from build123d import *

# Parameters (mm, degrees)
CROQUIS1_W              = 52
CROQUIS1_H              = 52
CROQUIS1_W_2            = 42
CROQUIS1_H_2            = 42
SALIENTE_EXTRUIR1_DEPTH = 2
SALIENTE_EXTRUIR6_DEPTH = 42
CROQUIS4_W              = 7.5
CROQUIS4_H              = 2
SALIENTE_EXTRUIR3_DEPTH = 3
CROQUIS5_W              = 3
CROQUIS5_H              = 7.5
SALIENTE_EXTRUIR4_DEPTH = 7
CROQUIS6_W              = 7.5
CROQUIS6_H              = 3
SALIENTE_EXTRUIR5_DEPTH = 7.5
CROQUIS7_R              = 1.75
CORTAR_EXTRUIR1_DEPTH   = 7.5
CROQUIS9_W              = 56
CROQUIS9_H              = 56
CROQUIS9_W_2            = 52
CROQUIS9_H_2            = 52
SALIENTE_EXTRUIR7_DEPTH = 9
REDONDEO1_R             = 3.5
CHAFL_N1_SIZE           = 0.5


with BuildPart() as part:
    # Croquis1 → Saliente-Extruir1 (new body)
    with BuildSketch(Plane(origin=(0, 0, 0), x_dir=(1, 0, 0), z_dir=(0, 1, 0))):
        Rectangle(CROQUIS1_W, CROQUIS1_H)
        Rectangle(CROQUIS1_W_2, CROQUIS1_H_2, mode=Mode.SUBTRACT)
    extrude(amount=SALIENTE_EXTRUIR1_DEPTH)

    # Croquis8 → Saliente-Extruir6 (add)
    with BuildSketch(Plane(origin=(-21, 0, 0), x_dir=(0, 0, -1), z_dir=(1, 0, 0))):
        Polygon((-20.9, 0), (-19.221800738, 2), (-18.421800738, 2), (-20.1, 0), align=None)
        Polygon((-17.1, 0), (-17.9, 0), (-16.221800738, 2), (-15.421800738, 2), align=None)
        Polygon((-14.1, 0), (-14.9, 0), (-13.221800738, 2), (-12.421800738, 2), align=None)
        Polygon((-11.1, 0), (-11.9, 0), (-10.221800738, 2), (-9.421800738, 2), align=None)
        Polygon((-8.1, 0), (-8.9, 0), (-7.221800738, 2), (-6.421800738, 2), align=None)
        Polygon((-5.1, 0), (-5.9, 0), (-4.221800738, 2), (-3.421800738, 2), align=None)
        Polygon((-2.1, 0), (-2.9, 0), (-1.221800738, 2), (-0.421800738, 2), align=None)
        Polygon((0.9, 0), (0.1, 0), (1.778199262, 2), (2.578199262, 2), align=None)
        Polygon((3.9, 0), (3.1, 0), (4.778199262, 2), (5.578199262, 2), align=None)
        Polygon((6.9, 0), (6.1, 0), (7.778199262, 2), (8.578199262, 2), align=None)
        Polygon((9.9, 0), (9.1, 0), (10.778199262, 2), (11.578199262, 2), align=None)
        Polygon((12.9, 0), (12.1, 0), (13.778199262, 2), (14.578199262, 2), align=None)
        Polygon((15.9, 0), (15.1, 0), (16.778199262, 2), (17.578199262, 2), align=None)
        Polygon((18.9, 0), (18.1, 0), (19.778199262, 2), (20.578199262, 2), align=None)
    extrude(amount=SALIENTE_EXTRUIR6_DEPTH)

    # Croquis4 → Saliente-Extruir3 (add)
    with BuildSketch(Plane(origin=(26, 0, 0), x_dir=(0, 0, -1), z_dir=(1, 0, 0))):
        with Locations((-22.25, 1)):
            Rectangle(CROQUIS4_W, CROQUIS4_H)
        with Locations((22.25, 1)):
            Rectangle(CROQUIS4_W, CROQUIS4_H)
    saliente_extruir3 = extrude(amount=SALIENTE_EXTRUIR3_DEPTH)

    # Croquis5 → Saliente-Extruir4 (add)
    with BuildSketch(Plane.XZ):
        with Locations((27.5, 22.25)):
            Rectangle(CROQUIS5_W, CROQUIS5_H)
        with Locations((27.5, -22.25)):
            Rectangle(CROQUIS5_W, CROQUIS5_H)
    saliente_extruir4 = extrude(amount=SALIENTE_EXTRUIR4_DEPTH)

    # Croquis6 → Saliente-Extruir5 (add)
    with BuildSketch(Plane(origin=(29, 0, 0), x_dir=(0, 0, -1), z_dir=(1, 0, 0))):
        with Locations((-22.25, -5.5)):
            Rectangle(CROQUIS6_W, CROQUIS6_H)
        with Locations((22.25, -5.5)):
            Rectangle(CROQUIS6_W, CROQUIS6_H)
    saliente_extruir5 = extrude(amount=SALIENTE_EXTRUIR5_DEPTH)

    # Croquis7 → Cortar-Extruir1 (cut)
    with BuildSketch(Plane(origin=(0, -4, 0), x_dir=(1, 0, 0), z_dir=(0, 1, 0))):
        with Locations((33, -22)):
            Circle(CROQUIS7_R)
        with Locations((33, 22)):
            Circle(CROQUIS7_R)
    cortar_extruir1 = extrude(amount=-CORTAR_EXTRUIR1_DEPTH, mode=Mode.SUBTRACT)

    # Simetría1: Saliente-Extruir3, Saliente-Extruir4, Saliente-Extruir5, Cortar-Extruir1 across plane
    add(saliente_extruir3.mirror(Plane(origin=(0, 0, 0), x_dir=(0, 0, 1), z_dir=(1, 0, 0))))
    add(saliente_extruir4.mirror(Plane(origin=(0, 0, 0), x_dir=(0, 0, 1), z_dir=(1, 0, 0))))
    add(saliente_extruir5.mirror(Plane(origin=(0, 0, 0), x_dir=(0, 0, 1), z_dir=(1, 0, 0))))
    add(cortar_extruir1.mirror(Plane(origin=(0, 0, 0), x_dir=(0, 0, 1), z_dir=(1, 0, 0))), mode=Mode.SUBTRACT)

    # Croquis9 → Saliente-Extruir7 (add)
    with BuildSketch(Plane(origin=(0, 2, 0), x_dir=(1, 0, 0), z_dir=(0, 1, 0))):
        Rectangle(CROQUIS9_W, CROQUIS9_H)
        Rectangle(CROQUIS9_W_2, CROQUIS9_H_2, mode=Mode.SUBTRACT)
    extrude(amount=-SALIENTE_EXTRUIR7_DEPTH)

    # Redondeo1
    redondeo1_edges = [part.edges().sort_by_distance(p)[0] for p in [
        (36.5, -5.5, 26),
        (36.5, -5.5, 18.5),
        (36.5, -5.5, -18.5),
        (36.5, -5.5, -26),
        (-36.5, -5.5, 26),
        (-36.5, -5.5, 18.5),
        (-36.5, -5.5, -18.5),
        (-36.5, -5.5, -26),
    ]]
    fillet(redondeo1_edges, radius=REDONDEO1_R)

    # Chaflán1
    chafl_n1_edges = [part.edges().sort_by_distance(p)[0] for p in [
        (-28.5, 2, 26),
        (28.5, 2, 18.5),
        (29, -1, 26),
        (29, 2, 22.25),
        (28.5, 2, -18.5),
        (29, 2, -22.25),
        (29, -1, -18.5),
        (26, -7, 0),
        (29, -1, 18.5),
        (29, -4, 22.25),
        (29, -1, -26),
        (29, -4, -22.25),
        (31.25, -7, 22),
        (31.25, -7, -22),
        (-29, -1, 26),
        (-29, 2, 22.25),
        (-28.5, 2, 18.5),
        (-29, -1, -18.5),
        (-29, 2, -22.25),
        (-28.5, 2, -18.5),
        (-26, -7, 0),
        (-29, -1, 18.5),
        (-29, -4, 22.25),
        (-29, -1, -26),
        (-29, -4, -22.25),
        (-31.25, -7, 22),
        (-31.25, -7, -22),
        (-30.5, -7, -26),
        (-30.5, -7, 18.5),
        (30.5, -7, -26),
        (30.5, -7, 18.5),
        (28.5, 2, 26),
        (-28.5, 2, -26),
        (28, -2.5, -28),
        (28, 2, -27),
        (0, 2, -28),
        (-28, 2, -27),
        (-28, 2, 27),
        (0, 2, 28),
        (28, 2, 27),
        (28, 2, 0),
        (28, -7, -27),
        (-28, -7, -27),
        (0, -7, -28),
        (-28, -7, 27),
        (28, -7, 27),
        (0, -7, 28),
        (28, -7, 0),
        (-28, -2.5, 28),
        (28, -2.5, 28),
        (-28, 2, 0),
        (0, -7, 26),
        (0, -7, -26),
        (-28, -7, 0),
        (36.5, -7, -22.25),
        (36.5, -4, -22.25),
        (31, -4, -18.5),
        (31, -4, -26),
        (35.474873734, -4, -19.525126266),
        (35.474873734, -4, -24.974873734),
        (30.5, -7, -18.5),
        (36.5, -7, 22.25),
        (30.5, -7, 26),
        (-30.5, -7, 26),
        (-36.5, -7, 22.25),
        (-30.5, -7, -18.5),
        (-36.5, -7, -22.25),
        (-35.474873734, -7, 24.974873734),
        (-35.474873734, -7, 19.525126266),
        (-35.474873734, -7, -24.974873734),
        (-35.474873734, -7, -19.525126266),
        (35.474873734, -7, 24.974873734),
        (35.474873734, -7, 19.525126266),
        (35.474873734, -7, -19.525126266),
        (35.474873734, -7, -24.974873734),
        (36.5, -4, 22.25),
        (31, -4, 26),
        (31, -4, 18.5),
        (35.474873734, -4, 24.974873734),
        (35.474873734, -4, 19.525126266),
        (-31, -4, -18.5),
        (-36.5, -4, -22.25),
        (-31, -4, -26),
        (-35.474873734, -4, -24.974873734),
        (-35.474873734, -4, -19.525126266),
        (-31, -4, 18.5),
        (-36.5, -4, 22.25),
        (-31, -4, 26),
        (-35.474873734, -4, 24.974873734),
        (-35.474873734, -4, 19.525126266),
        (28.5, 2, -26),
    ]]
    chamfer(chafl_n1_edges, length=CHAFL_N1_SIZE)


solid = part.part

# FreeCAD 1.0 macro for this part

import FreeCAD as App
import Part
import Sketcher
from FreeCAD import Vector
Q = App.Units.Quantity


def edges_at(feature, points):
    """Names of the edges that pass closest to the given points."""
    edges = feature.Shape.Edges
    near = lambda p: min(range(len(edges)), key=lambda i: edges[i].distToShape(Part.Vertex(*p))[0])
    return sorted({f"Edge{near(p) + 1}" for p in points})


def add_polygon(sketch, points):
    """Adds a closed chain of lines whose ends are joined by coincident constraints."""
    first, n = sketch.GeometryCount, len(points)
    for a, b in zip(points, points[1:] + points[:1]):
        sketch.addGeometry(Part.LineSegment(App.Vector(*a, 0), App.Vector(*b, 0)), False)
    for i in range(n):
        sketch.addConstraint(Sketcher.Constraint("Coincident", first + i, 2, first + (i + 1) % n, 1))

doc = App.newDocument("Part")
body = doc.addObject("PartDesign::Body", "Body")

# Sketch on XZ plane
sketch1 = body.newObject("Sketcher::SketchObject", "Sketch")
sketch1.AttachmentSupport = (doc.getObject("XZ_Plane"), [""])
sketch1.MapMode = "FlatFace"
add_polygon(sketch1, [(-26, -26), (-26, 26), (26, 26), (26, -26)])  # lines 0-3
add_polygon(sketch1, [(21, 21), (-21, 21), (-21, -21), (21, -21)])  # lines 4-7
sketch1.addConstraint(Sketcher.Constraint("Vertical", 0))
sketch1.addConstraint(Sketcher.Constraint("Horizontal", 1))
sketch1.addConstraint(Sketcher.Constraint("Vertical", 2))
sketch1.addConstraint(Sketcher.Constraint("Horizontal", 3))
sketch1.addConstraint(Sketcher.Constraint("Horizontal", 4))
sketch1.addConstraint(Sketcher.Constraint("Vertical", 5))
sketch1.addConstraint(Sketcher.Constraint("Horizontal", 6))
sketch1.addConstraint(Sketcher.Constraint("Vertical", 7))
sketch1.addConstraint(Sketcher.Constraint("Symmetric", 0, 2, 2, 2, -1, 1))
sketch1.addConstraint(Sketcher.Constraint("Symmetric", 4, 2, 6, 2, -1, 1))
sketch1.addConstraint(Sketcher.Constraint("Equal", 3, 0))
sketch1.addConstraint(Sketcher.Constraint("Equal", 6, 5))
sketch1.addConstraint(Sketcher.Constraint("DistanceX", 1, 1, 1, 2, Q("52 mm")))
sketch1.addConstraint(Sketcher.Constraint("DistanceX", 4, 2, 4, 1, Q("42 mm")))
pad1 = body.newObject("PartDesign::Pad", "Pad")
pad1.Profile = sketch1
pad1.Length = 2
pad1.Reversed = True

# Sketch on YZ plane
sketch2 = body.newObject("Sketcher::SketchObject", "Sketch001")
sketch2.AttachmentSupport = (doc.getObject("YZ_Plane"), [""])
sketch2.MapMode = "FlatFace"
sketch2.AttachmentOffset = App.Placement(Vector(0, 0, -21), App.Rotation())
add_polygon(sketch2, [(2, 19.2), (0, 20.9), (0, 20.1), (2, 18.4)])  # lines 0-3
add_polygon(sketch2, [(0, 17.9), (0, 17.1), (2, 15.4), (2, 16.2)])  # lines 4-7
add_polygon(sketch2, [(0, 14.9), (0, 14.1), (2, 12.4), (2, 13.2)])  # lines 8-11
add_polygon(sketch2, [(0, 11.9), (0, 11.1), (2, 9.4), (2, 10.2)])  # lines 12-15
add_polygon(sketch2, [(0, 8.9), (0, 8.1), (2, 6.4), (2, 7.2)])  # lines 16-19
add_polygon(sketch2, [(0, 5.9), (0, 5.1), (2, 3.4), (2, 4.2)])  # lines 20-23
add_polygon(sketch2, [(0, 2.9), (0, 2.1), (2, 0.4), (2, 1.2)])  # lines 24-27
add_polygon(sketch2, [(0, -0.1), (0, -0.9), (2, -2.6), (2, -1.8)])  # lines 28-31
add_polygon(sketch2, [(0, -3.1), (0, -3.9), (2, -5.6), (2, -4.8)])  # lines 32-35
add_polygon(sketch2, [(0, -6.1), (0, -6.9), (2, -8.6), (2, -7.8)])  # lines 36-39
add_polygon(sketch2, [(0, -9.1), (0, -9.9), (2, -11.6), (2, -10.8)])  # lines 40-43
add_polygon(sketch2, [(0, -12.1), (0, -12.9), (2, -14.6), (2, -13.8)])  # lines 44-47
add_polygon(sketch2, [(0, -15.1), (0, -15.9), (2, -17.6), (2, -16.8)])  # lines 48-51
add_polygon(sketch2, [(0, -18.1), (0, -18.9), (2, -20.6), (2, -19.8)])  # lines 52-55
sketch2.addConstraint(Sketcher.Constraint("Vertical", 1))
sketch2.addConstraint(Sketcher.Constraint("Vertical", 3))
sketch2.addConstraint(Sketcher.Constraint("Vertical", 4))
sketch2.addConstraint(Sketcher.Constraint("Vertical", 6))
sketch2.addConstraint(Sketcher.Constraint("Vertical", 8))
sketch2.addConstraint(Sketcher.Constraint("Vertical", 10))
sketch2.addConstraint(Sketcher.Constraint("Vertical", 12))
sketch2.addConstraint(Sketcher.Constraint("Vertical", 14))
sketch2.addConstraint(Sketcher.Constraint("Vertical", 16))
sketch2.addConstraint(Sketcher.Constraint("Vertical", 18))
sketch2.addConstraint(Sketcher.Constraint("Vertical", 20))
sketch2.addConstraint(Sketcher.Constraint("Vertical", 22))
sketch2.addConstraint(Sketcher.Constraint("Vertical", 24))
sketch2.addConstraint(Sketcher.Constraint("Vertical", 26))
sketch2.addConstraint(Sketcher.Constraint("Vertical", 28))
sketch2.addConstraint(Sketcher.Constraint("Vertical", 30))
sketch2.addConstraint(Sketcher.Constraint("Vertical", 32))
sketch2.addConstraint(Sketcher.Constraint("Vertical", 34))
sketch2.addConstraint(Sketcher.Constraint("Vertical", 36))
sketch2.addConstraint(Sketcher.Constraint("Vertical", 38))
sketch2.addConstraint(Sketcher.Constraint("Vertical", 40))
sketch2.addConstraint(Sketcher.Constraint("Vertical", 42))
sketch2.addConstraint(Sketcher.Constraint("Vertical", 44))
sketch2.addConstraint(Sketcher.Constraint("Vertical", 46))
sketch2.addConstraint(Sketcher.Constraint("Vertical", 48))
sketch2.addConstraint(Sketcher.Constraint("Vertical", 50))
sketch2.addConstraint(Sketcher.Constraint("Vertical", 52))
sketch2.addConstraint(Sketcher.Constraint("Vertical", 54))
sketch2.addConstraint(Sketcher.Constraint("PointOnObject", 0, 2, -2))
sketch2.addConstraint(Sketcher.Constraint("PointOnObject", 4, 2, -2))
sketch2.addConstraint(Sketcher.Constraint("PointOnObject", 8, 2, -2))
sketch2.addConstraint(Sketcher.Constraint("PointOnObject", 12, 2, -2))
sketch2.addConstraint(Sketcher.Constraint("PointOnObject", 16, 2, -2))
sketch2.addConstraint(Sketcher.Constraint("PointOnObject", 20, 2, -2))
sketch2.addConstraint(Sketcher.Constraint("PointOnObject", 24, 2, -2))
sketch2.addConstraint(Sketcher.Constraint("PointOnObject", 28, 2, -2))
sketch2.addConstraint(Sketcher.Constraint("PointOnObject", 32, 2, -2))
sketch2.addConstraint(Sketcher.Constraint("PointOnObject", 36, 2, -2))
sketch2.addConstraint(Sketcher.Constraint("PointOnObject", 40, 2, -2))
sketch2.addConstraint(Sketcher.Constraint("PointOnObject", 44, 2, -2))
sketch2.addConstraint(Sketcher.Constraint("PointOnObject", 48, 2, -2))
sketch2.addConstraint(Sketcher.Constraint("PointOnObject", 52, 2, -2))
sketch2.addConstraint(Sketcher.Constraint("Parallel", 0, 2))
sketch2.addConstraint(Sketcher.Constraint("Parallel", 2, 5))
sketch2.addConstraint(Sketcher.Constraint("Parallel", 5, 7))
sketch2.addConstraint(Sketcher.Constraint("Parallel", 7, 9))
sketch2.addConstraint(Sketcher.Constraint("Parallel", 9, 11))
sketch2.addConstraint(Sketcher.Constraint("Parallel", 11, 13))
sketch2.addConstraint(Sketcher.Constraint("Parallel", 13, 15))
sketch2.addConstraint(Sketcher.Constraint("Parallel", 15, 17))
sketch2.addConstraint(Sketcher.Constraint("Parallel", 17, 19))
sketch2.addConstraint(Sketcher.Constraint("Parallel", 19, 21))
sketch2.addConstraint(Sketcher.Constraint("Parallel", 21, 23))
sketch2.addConstraint(Sketcher.Constraint("Parallel", 23, 25))
sketch2.addConstraint(Sketcher.Constraint("Parallel", 25, 27))
sketch2.addConstraint(Sketcher.Constraint("Parallel", 27, 29))
sketch2.addConstraint(Sketcher.Constraint("Parallel", 29, 31))
sketch2.addConstraint(Sketcher.Constraint("Parallel", 31, 33))
sketch2.addConstraint(Sketcher.Constraint("Parallel", 33, 35))
sketch2.addConstraint(Sketcher.Constraint("Parallel", 35, 37))
sketch2.addConstraint(Sketcher.Constraint("Parallel", 37, 39))
sketch2.addConstraint(Sketcher.Constraint("Parallel", 39, 41))
sketch2.addConstraint(Sketcher.Constraint("Parallel", 41, 43))
sketch2.addConstraint(Sketcher.Constraint("Parallel", 43, 45))
sketch2.addConstraint(Sketcher.Constraint("Parallel", 45, 47))
sketch2.addConstraint(Sketcher.Constraint("Parallel", 47, 49))
sketch2.addConstraint(Sketcher.Constraint("Parallel", 49, 51))
sketch2.addConstraint(Sketcher.Constraint("Parallel", 51, 53))
sketch2.addConstraint(Sketcher.Constraint("Parallel", 53, 55))
sketch2.addConstraint(Sketcher.Constraint("Vertical", 3, 2, 5, 2))
sketch2.addConstraint(Sketcher.Constraint("Vertical", 6, 2, 9, 2))
sketch2.addConstraint(Sketcher.Constraint("Vertical", 10, 2, 13, 2))
sketch2.addConstraint(Sketcher.Constraint("Vertical", 14, 2, 17, 2))
sketch2.addConstraint(Sketcher.Constraint("Vertical", 18, 2, 21, 2))
sketch2.addConstraint(Sketcher.Constraint("Vertical", 22, 2, 25, 2))
sketch2.addConstraint(Sketcher.Constraint("Vertical", 26, 2, 29, 2))
sketch2.addConstraint(Sketcher.Constraint("Vertical", 30, 2, 33, 2))
sketch2.addConstraint(Sketcher.Constraint("Vertical", 34, 2, 37, 2))
sketch2.addConstraint(Sketcher.Constraint("Vertical", 38, 2, 41, 2))
sketch2.addConstraint(Sketcher.Constraint("Vertical", 42, 2, 45, 2))
sketch2.addConstraint(Sketcher.Constraint("Vertical", 46, 2, 49, 2))
sketch2.addConstraint(Sketcher.Constraint("Vertical", 50, 2, 53, 2))
sketch2.addConstraint(Sketcher.Constraint("Equal", 3, 4))
sketch2.addConstraint(Sketcher.Constraint("Equal", 6, 8))
sketch2.addConstraint(Sketcher.Constraint("Equal", 10, 12))
sketch2.addConstraint(Sketcher.Constraint("Equal", 14, 16))
sketch2.addConstraint(Sketcher.Constraint("Equal", 18, 20))
sketch2.addConstraint(Sketcher.Constraint("Equal", 22, 24))
sketch2.addConstraint(Sketcher.Constraint("Equal", 26, 28))
sketch2.addConstraint(Sketcher.Constraint("Equal", 30, 32))
sketch2.addConstraint(Sketcher.Constraint("Equal", 34, 36))
sketch2.addConstraint(Sketcher.Constraint("Equal", 38, 40))
sketch2.addConstraint(Sketcher.Constraint("Equal", 42, 44))
sketch2.addConstraint(Sketcher.Constraint("Equal", 46, 48))
sketch2.addConstraint(Sketcher.Constraint("Equal", 50, 52))
sketch2.addConstraint(Sketcher.Constraint("Angle", 0, Q("140 deg")))
sketch2.addConstraint(Sketcher.Constraint("DistanceY", 1, 2, 1, 1, Q("0.8 mm")))
sketch2.addConstraint(Sketcher.Constraint("DistanceX", -1, 1, 2, 2, Q("2 mm")))
sketch2.addConstraint(Sketcher.Constraint("DistanceY", 4, 2, 1, 2, Q("3 mm")))
sketch2.addConstraint(Sketcher.Constraint("DistanceY", 8, 2, 4, 2, Q("3 mm")))
sketch2.addConstraint(Sketcher.Constraint("DistanceY", 12, 2, 8, 2, Q("3 mm")))
sketch2.addConstraint(Sketcher.Constraint("DistanceY", 16, 2, 12, 2, Q("3 mm")))
sketch2.addConstraint(Sketcher.Constraint("DistanceY", 20, 2, 16, 2, Q("3 mm")))
sketch2.addConstraint(Sketcher.Constraint("DistanceY", 24, 2, 20, 2, Q("3 mm")))
sketch2.addConstraint(Sketcher.Constraint("DistanceY", 28, 2, 24, 2, Q("3 mm")))
sketch2.addConstraint(Sketcher.Constraint("DistanceY", 32, 2, 28, 2, Q("3 mm")))
sketch2.addConstraint(Sketcher.Constraint("DistanceY", 36, 2, 32, 2, Q("3 mm")))
sketch2.addConstraint(Sketcher.Constraint("DistanceY", 40, 2, 36, 2, Q("3 mm")))
sketch2.addConstraint(Sketcher.Constraint("DistanceY", 44, 2, 40, 2, Q("3 mm")))
sketch2.addConstraint(Sketcher.Constraint("DistanceY", 48, 2, 44, 2, Q("3 mm")))
sketch2.addConstraint(Sketcher.Constraint("DistanceY", 52, 2, 48, 2, Q("3 mm")))
sketch2.addConstraint(Sketcher.Constraint("DistanceY", -1, 1, 0, 2, Q("20.9 mm")))
pad2 = body.newObject("PartDesign::Pad", "Pad001")
pad2.Profile = sketch2
pad2.Length = 42

# Sketch on YZ plane
sketch3 = body.newObject("Sketcher::SketchObject", "Sketch002")
sketch3.AttachmentSupport = (doc.getObject("YZ_Plane"), [""])
sketch3.MapMode = "FlatFace"
sketch3.AttachmentOffset = App.Placement(Vector(0, 0, 26), App.Rotation())
add_polygon(sketch3, [(2, 26), (0, 26), (0, 18.5), (2, 18.5)])  # lines 0-3
add_polygon(sketch3, [(2, -18.5), (0, -18.5), (0, -26), (2, -26)])  # lines 4-7
sketch3.addConstraint(Sketcher.Constraint("Horizontal", 0))
sketch3.addConstraint(Sketcher.Constraint("Vertical", 1))
sketch3.addConstraint(Sketcher.Constraint("Horizontal", 2))
sketch3.addConstraint(Sketcher.Constraint("Vertical", 3))
sketch3.addConstraint(Sketcher.Constraint("Horizontal", 4))
sketch3.addConstraint(Sketcher.Constraint("Vertical", 5))
sketch3.addConstraint(Sketcher.Constraint("Horizontal", 6))
sketch3.addConstraint(Sketcher.Constraint("Vertical", 7))
sketch3.addConstraint(Sketcher.Constraint("Symmetric", 1, 2, 4, 2, -1, 1))
sketch3.addConstraint(Sketcher.Constraint("Symmetric", 0, 2, 5, 2, -1))
sketch3.addConstraint(Sketcher.Constraint("Vertical", 3, 2, 6, 2))
sketch3.addConstraint(Sketcher.Constraint("DistanceX", 0, 2, 0, 1, Q("2 mm")))
sketch3.addConstraint(Sketcher.Constraint("DistanceY", 1, 2, 1, 1, Q("7.5 mm")))
sketch3.addConstraint(Sketcher.Constraint("DistanceY", -1, 1, 0, 2, Q("26 mm")))
pad3 = body.newObject("PartDesign::Pad", "Pad002")
pad3.Profile = sketch3
pad3.Length = 3

# Sketch on XZ plane
sketch4 = body.newObject("Sketcher::SketchObject", "Sketch003")
sketch4.AttachmentSupport = (doc.getObject("XZ_Plane"), [""])
sketch4.MapMode = "FlatFace"
add_polygon(sketch4, [(26, 26), (26, 18.5), (29, 18.5), (29, 26)])  # lines 0-3
add_polygon(sketch4, [(26, -18.5), (26, -26), (29, -26), (29, -18.5)])  # lines 4-7
sketch4.addConstraint(Sketcher.Constraint("Vertical", 0))
sketch4.addConstraint(Sketcher.Constraint("Horizontal", 1))
sketch4.addConstraint(Sketcher.Constraint("Vertical", 2))
sketch4.addConstraint(Sketcher.Constraint("Horizontal", 3))
sketch4.addConstraint(Sketcher.Constraint("Vertical", 4))
sketch4.addConstraint(Sketcher.Constraint("Horizontal", 5))
sketch4.addConstraint(Sketcher.Constraint("Vertical", 6))
sketch4.addConstraint(Sketcher.Constraint("Horizontal", 7))
sketch4.addConstraint(Sketcher.Constraint("Symmetric", 3, 2, 4, 2, -1))
sketch4.addConstraint(Sketcher.Constraint("Symmetric", 1, 2, 6, 2, -1))
sketch4.addConstraint(Sketcher.Constraint("DistanceX", 1, 1, 1, 2, Q("3 mm")))
sketch4.addConstraint(Sketcher.Constraint("DistanceY", 0, 2, 0, 1, Q("7.5 mm")))
sketch4.addConstraint(Sketcher.Constraint("DistanceX", -1, 1, 0, 2, Q("26 mm")))
sketch4.addConstraint(Sketcher.Constraint("DistanceY", -1, 1, 2, 2, Q("26 mm")))
pad4 = body.newObject("PartDesign::Pad", "Pad003")
pad4.Profile = sketch4
pad4.Length = 7

# Sketch on YZ plane
sketch5 = body.newObject("Sketcher::SketchObject", "Sketch004")
sketch5.AttachmentSupport = (doc.getObject("YZ_Plane"), [""])
sketch5.MapMode = "FlatFace"
sketch5.AttachmentOffset = App.Placement(Vector(0, 0, 29), App.Rotation())
add_polygon(sketch5, [(-4, 26), (-7, 26), (-7, 18.5), (-4, 18.5)])  # lines 0-3
add_polygon(sketch5, [(-4, -18.5), (-7, -18.5), (-7, -26), (-4, -26)])  # lines 4-7
sketch5.addConstraint(Sketcher.Constraint("Horizontal", 0))
sketch5.addConstraint(Sketcher.Constraint("Vertical", 1))
sketch5.addConstraint(Sketcher.Constraint("Horizontal", 2))
sketch5.addConstraint(Sketcher.Constraint("Vertical", 3))
sketch5.addConstraint(Sketcher.Constraint("Horizontal", 4))
sketch5.addConstraint(Sketcher.Constraint("Vertical", 5))
sketch5.addConstraint(Sketcher.Constraint("Horizontal", 6))
sketch5.addConstraint(Sketcher.Constraint("Vertical", 7))
sketch5.addConstraint(Sketcher.Constraint("Symmetric", 1, 2, 4, 2, -1))
sketch5.addConstraint(Sketcher.Constraint("Symmetric", 3, 2, 6, 2, -1))
sketch5.addConstraint(Sketcher.Constraint("DistanceX", 0, 2, 0, 1, Q("3 mm")))
sketch5.addConstraint(Sketcher.Constraint("DistanceY", 1, 2, 1, 1, Q("7.5 mm")))
sketch5.addConstraint(Sketcher.Constraint("DistanceX", 0, 2, -1, 1, Q("7 mm")))
sketch5.addConstraint(Sketcher.Constraint("DistanceY", -1, 1, 0, 2, Q("26 mm")))
pad5 = body.newObject("PartDesign::Pad", "Pad004")
pad5.Profile = sketch5
pad5.Length = 7.5

# Sketch on XZ plane
sketch6 = body.newObject("Sketcher::SketchObject", "Sketch005")
sketch6.AttachmentSupport = (doc.getObject("XZ_Plane"), [""])
sketch6.MapMode = "FlatFace"
sketch6.AttachmentOffset = App.Placement(Vector(0, 0, 4), App.Rotation())
sketch6.addGeometry(Part.Circle(Vector(33, 22, 0), Vector(0, 0, 1), 1.8), False)
sketch6.addGeometry(Part.Circle(Vector(33, -22, 0), Vector(0, 0, 1), 1.8), False)
sketch6.addConstraint(Sketcher.Constraint("Equal", 0, 1))
sketch6.addConstraint(Sketcher.Constraint("Symmetric", 0, 3, 1, 3, -1))
sketch6.addConstraint(Sketcher.Constraint("Diameter", 0, Q("3.5 mm")))
sketch6.addConstraint(Sketcher.Constraint("DistanceX", -1, 1, 0, 3, Q("33 mm")))
sketch6.addConstraint(Sketcher.Constraint("DistanceY", -1, 1, 0, 3, Q("22 mm")))
pocket1 = body.newObject("PartDesign::Pocket", "Pocket")
pocket1.Profile = sketch6
pocket1.Length = 7.5
pocket1.Reversed = True
doc.recompute()

mirrored = body.newObject("PartDesign::Mirrored", "Mirrored")
mirrored.Originals = [pad3, pad4, pad5, pocket1]
mirrored.MirrorPlane = (doc.getObject("YZ_Plane"), [""])
body.Tip = mirrored

# Sketch on XZ plane
sketch7 = body.newObject("Sketcher::SketchObject", "Sketch006")
sketch7.AttachmentSupport = (doc.getObject("XZ_Plane"), [""])
sketch7.MapMode = "FlatFace"
sketch7.AttachmentOffset = App.Placement(Vector(0, 0, -2), App.Rotation())
add_polygon(sketch7, [(-28, -28), (-28, 28), (28, 28), (28, -28)])  # lines 0-3
add_polygon(sketch7, [(26, 26), (-26, 26), (-26, -26), (26, -26)])  # lines 4-7
sketch7.addConstraint(Sketcher.Constraint("Vertical", 0))
sketch7.addConstraint(Sketcher.Constraint("Horizontal", 1))
sketch7.addConstraint(Sketcher.Constraint("Vertical", 2))
sketch7.addConstraint(Sketcher.Constraint("Horizontal", 3))
sketch7.addConstraint(Sketcher.Constraint("Horizontal", 4))
sketch7.addConstraint(Sketcher.Constraint("Vertical", 5))
sketch7.addConstraint(Sketcher.Constraint("Horizontal", 6))
sketch7.addConstraint(Sketcher.Constraint("Vertical", 7))
sketch7.addConstraint(Sketcher.Constraint("Symmetric", 0, 2, 2, 2, -1, 1))
sketch7.addConstraint(Sketcher.Constraint("Symmetric", 4, 2, 6, 2, -1, 1))
sketch7.addConstraint(Sketcher.Constraint("Equal", 3, 0))
sketch7.addConstraint(Sketcher.Constraint("Equal", 6, 5))
sketch7.addConstraint(Sketcher.Constraint("DistanceX", 1, 1, 1, 2, Q("56 mm")))
sketch7.addConstraint(Sketcher.Constraint("DistanceX", 4, 2, 4, 1, Q("52 mm")))
pad6 = body.newObject("PartDesign::Pad", "Pad005")
pad6.Profile = sketch7
pad6.Length = 9
doc.recompute()

fillet = body.newObject("PartDesign::Fillet", "Fillet")
fillet.Base = (pad6, edges_at(pad6, [
    (36.5, -5.5, 26),
    (36.5, -5.5, 18.5),
    (36.5, -5.5, -18.5),
    (36.5, -5.5, -26),
    (-36.5, -5.5, 26),
    (-36.5, -5.5, 18.5),
    (-36.5, -5.5, -18.5),
    (-36.5, -5.5, -26),
]))
fillet.Radius = 3.5
doc.recompute()

chamfer = body.newObject("PartDesign::Chamfer", "Chamfer")
chamfer.Base = (fillet, edges_at(fillet, [
    (-28.5, 2, 26),
    (28.5, 2, 18.5),
    (29, -1, 26),
    (29, 2, 22.25),
    (28.5, 2, -18.5),
    (29, 2, -22.25),
    (29, -1, -18.5),
    (26, -7, 0),
    (29, -1, 18.5),
    (29, -4, 22.25),
    (29, -1, -26),
    (29, -4, -22.25),
    (31.25, -7, 22),
    (31.25, -7, -22),
    (-29, -1, 26),
    (-29, 2, 22.25),
    (-28.5, 2, 18.5),
    (-29, -1, -18.5),
    (-29, 2, -22.25),
    (-28.5, 2, -18.5),
    (-26, -7, 0),
    (-29, -1, 18.5),
    (-29, -4, 22.25),
    (-29, -1, -26),
    (-29, -4, -22.25),
    (-31.25, -7, 22),
    (-31.25, -7, -22),
    (-30.5, -7, -26),
    (-30.5, -7, 18.5),
    (30.5, -7, -26),
    (30.5, -7, 18.5),
    (28.5, 2, 26),
    (-28.5, 2, -26),
    (28, -2.5, -28),
    (28, 2, -27),
    (0, 2, -28),
    (-28, 2, -27),
    (-28, 2, 27),
    (0, 2, 28),
    (28, 2, 27),
    (28, 2, 0),
    (28, -7, -27),
    (-28, -7, -27),
    (0, -7, -28),
    (-28, -7, 27),
    (28, -7, 27),
    (0, -7, 28),
    (28, -7, 0),
    (-28, -2.5, 28),
    (28, -2.5, 28),
    (-28, 2, 0),
    (0, -7, 26),
    (0, -7, -26),
    (-28, -7, 0),
    (36.5, -7, -22.25),
    (36.5, -4, -22.25),
    (31, -4, -18.5),
    (31, -4, -26),
    (35.475, -4, -19.525),
    (35.475, -4, -24.975),
    (30.5, -7, -18.5),
    (36.5, -7, 22.25),
    (30.5, -7, 26),
    (-30.5, -7, 26),
    (-36.5, -7, 22.25),
    (-30.5, -7, -18.5),
    (-36.5, -7, -22.25),
    (-35.475, -7, 24.975),
    (-35.475, -7, 19.525),
    (-35.475, -7, -24.975),
    (-35.475, -7, -19.525),
    (35.475, -7, 24.975),
    (35.475, -7, 19.525),
    (35.475, -7, -19.525),
    (35.475, -7, -24.975),
    (36.5, -4, 22.25),
    (31, -4, 26),
    (31, -4, 18.5),
    (35.475, -4, 24.975),
    (35.475, -4, 19.525),
    (-31, -4, -18.5),
    (-36.5, -4, -22.25),
    (-31, -4, -26),
    (-35.475, -4, -24.975),
    (-35.475, -4, -19.525),
    (-31, -4, 18.5),
    (-36.5, -4, 22.25),
    (-31, -4, 26),
    (-35.475, -4, 24.975),
    (-35.475, -4, 19.525),
    (28.5, 2, -26),
]))
chamfer.Size = 0.5

doc.recompute()
